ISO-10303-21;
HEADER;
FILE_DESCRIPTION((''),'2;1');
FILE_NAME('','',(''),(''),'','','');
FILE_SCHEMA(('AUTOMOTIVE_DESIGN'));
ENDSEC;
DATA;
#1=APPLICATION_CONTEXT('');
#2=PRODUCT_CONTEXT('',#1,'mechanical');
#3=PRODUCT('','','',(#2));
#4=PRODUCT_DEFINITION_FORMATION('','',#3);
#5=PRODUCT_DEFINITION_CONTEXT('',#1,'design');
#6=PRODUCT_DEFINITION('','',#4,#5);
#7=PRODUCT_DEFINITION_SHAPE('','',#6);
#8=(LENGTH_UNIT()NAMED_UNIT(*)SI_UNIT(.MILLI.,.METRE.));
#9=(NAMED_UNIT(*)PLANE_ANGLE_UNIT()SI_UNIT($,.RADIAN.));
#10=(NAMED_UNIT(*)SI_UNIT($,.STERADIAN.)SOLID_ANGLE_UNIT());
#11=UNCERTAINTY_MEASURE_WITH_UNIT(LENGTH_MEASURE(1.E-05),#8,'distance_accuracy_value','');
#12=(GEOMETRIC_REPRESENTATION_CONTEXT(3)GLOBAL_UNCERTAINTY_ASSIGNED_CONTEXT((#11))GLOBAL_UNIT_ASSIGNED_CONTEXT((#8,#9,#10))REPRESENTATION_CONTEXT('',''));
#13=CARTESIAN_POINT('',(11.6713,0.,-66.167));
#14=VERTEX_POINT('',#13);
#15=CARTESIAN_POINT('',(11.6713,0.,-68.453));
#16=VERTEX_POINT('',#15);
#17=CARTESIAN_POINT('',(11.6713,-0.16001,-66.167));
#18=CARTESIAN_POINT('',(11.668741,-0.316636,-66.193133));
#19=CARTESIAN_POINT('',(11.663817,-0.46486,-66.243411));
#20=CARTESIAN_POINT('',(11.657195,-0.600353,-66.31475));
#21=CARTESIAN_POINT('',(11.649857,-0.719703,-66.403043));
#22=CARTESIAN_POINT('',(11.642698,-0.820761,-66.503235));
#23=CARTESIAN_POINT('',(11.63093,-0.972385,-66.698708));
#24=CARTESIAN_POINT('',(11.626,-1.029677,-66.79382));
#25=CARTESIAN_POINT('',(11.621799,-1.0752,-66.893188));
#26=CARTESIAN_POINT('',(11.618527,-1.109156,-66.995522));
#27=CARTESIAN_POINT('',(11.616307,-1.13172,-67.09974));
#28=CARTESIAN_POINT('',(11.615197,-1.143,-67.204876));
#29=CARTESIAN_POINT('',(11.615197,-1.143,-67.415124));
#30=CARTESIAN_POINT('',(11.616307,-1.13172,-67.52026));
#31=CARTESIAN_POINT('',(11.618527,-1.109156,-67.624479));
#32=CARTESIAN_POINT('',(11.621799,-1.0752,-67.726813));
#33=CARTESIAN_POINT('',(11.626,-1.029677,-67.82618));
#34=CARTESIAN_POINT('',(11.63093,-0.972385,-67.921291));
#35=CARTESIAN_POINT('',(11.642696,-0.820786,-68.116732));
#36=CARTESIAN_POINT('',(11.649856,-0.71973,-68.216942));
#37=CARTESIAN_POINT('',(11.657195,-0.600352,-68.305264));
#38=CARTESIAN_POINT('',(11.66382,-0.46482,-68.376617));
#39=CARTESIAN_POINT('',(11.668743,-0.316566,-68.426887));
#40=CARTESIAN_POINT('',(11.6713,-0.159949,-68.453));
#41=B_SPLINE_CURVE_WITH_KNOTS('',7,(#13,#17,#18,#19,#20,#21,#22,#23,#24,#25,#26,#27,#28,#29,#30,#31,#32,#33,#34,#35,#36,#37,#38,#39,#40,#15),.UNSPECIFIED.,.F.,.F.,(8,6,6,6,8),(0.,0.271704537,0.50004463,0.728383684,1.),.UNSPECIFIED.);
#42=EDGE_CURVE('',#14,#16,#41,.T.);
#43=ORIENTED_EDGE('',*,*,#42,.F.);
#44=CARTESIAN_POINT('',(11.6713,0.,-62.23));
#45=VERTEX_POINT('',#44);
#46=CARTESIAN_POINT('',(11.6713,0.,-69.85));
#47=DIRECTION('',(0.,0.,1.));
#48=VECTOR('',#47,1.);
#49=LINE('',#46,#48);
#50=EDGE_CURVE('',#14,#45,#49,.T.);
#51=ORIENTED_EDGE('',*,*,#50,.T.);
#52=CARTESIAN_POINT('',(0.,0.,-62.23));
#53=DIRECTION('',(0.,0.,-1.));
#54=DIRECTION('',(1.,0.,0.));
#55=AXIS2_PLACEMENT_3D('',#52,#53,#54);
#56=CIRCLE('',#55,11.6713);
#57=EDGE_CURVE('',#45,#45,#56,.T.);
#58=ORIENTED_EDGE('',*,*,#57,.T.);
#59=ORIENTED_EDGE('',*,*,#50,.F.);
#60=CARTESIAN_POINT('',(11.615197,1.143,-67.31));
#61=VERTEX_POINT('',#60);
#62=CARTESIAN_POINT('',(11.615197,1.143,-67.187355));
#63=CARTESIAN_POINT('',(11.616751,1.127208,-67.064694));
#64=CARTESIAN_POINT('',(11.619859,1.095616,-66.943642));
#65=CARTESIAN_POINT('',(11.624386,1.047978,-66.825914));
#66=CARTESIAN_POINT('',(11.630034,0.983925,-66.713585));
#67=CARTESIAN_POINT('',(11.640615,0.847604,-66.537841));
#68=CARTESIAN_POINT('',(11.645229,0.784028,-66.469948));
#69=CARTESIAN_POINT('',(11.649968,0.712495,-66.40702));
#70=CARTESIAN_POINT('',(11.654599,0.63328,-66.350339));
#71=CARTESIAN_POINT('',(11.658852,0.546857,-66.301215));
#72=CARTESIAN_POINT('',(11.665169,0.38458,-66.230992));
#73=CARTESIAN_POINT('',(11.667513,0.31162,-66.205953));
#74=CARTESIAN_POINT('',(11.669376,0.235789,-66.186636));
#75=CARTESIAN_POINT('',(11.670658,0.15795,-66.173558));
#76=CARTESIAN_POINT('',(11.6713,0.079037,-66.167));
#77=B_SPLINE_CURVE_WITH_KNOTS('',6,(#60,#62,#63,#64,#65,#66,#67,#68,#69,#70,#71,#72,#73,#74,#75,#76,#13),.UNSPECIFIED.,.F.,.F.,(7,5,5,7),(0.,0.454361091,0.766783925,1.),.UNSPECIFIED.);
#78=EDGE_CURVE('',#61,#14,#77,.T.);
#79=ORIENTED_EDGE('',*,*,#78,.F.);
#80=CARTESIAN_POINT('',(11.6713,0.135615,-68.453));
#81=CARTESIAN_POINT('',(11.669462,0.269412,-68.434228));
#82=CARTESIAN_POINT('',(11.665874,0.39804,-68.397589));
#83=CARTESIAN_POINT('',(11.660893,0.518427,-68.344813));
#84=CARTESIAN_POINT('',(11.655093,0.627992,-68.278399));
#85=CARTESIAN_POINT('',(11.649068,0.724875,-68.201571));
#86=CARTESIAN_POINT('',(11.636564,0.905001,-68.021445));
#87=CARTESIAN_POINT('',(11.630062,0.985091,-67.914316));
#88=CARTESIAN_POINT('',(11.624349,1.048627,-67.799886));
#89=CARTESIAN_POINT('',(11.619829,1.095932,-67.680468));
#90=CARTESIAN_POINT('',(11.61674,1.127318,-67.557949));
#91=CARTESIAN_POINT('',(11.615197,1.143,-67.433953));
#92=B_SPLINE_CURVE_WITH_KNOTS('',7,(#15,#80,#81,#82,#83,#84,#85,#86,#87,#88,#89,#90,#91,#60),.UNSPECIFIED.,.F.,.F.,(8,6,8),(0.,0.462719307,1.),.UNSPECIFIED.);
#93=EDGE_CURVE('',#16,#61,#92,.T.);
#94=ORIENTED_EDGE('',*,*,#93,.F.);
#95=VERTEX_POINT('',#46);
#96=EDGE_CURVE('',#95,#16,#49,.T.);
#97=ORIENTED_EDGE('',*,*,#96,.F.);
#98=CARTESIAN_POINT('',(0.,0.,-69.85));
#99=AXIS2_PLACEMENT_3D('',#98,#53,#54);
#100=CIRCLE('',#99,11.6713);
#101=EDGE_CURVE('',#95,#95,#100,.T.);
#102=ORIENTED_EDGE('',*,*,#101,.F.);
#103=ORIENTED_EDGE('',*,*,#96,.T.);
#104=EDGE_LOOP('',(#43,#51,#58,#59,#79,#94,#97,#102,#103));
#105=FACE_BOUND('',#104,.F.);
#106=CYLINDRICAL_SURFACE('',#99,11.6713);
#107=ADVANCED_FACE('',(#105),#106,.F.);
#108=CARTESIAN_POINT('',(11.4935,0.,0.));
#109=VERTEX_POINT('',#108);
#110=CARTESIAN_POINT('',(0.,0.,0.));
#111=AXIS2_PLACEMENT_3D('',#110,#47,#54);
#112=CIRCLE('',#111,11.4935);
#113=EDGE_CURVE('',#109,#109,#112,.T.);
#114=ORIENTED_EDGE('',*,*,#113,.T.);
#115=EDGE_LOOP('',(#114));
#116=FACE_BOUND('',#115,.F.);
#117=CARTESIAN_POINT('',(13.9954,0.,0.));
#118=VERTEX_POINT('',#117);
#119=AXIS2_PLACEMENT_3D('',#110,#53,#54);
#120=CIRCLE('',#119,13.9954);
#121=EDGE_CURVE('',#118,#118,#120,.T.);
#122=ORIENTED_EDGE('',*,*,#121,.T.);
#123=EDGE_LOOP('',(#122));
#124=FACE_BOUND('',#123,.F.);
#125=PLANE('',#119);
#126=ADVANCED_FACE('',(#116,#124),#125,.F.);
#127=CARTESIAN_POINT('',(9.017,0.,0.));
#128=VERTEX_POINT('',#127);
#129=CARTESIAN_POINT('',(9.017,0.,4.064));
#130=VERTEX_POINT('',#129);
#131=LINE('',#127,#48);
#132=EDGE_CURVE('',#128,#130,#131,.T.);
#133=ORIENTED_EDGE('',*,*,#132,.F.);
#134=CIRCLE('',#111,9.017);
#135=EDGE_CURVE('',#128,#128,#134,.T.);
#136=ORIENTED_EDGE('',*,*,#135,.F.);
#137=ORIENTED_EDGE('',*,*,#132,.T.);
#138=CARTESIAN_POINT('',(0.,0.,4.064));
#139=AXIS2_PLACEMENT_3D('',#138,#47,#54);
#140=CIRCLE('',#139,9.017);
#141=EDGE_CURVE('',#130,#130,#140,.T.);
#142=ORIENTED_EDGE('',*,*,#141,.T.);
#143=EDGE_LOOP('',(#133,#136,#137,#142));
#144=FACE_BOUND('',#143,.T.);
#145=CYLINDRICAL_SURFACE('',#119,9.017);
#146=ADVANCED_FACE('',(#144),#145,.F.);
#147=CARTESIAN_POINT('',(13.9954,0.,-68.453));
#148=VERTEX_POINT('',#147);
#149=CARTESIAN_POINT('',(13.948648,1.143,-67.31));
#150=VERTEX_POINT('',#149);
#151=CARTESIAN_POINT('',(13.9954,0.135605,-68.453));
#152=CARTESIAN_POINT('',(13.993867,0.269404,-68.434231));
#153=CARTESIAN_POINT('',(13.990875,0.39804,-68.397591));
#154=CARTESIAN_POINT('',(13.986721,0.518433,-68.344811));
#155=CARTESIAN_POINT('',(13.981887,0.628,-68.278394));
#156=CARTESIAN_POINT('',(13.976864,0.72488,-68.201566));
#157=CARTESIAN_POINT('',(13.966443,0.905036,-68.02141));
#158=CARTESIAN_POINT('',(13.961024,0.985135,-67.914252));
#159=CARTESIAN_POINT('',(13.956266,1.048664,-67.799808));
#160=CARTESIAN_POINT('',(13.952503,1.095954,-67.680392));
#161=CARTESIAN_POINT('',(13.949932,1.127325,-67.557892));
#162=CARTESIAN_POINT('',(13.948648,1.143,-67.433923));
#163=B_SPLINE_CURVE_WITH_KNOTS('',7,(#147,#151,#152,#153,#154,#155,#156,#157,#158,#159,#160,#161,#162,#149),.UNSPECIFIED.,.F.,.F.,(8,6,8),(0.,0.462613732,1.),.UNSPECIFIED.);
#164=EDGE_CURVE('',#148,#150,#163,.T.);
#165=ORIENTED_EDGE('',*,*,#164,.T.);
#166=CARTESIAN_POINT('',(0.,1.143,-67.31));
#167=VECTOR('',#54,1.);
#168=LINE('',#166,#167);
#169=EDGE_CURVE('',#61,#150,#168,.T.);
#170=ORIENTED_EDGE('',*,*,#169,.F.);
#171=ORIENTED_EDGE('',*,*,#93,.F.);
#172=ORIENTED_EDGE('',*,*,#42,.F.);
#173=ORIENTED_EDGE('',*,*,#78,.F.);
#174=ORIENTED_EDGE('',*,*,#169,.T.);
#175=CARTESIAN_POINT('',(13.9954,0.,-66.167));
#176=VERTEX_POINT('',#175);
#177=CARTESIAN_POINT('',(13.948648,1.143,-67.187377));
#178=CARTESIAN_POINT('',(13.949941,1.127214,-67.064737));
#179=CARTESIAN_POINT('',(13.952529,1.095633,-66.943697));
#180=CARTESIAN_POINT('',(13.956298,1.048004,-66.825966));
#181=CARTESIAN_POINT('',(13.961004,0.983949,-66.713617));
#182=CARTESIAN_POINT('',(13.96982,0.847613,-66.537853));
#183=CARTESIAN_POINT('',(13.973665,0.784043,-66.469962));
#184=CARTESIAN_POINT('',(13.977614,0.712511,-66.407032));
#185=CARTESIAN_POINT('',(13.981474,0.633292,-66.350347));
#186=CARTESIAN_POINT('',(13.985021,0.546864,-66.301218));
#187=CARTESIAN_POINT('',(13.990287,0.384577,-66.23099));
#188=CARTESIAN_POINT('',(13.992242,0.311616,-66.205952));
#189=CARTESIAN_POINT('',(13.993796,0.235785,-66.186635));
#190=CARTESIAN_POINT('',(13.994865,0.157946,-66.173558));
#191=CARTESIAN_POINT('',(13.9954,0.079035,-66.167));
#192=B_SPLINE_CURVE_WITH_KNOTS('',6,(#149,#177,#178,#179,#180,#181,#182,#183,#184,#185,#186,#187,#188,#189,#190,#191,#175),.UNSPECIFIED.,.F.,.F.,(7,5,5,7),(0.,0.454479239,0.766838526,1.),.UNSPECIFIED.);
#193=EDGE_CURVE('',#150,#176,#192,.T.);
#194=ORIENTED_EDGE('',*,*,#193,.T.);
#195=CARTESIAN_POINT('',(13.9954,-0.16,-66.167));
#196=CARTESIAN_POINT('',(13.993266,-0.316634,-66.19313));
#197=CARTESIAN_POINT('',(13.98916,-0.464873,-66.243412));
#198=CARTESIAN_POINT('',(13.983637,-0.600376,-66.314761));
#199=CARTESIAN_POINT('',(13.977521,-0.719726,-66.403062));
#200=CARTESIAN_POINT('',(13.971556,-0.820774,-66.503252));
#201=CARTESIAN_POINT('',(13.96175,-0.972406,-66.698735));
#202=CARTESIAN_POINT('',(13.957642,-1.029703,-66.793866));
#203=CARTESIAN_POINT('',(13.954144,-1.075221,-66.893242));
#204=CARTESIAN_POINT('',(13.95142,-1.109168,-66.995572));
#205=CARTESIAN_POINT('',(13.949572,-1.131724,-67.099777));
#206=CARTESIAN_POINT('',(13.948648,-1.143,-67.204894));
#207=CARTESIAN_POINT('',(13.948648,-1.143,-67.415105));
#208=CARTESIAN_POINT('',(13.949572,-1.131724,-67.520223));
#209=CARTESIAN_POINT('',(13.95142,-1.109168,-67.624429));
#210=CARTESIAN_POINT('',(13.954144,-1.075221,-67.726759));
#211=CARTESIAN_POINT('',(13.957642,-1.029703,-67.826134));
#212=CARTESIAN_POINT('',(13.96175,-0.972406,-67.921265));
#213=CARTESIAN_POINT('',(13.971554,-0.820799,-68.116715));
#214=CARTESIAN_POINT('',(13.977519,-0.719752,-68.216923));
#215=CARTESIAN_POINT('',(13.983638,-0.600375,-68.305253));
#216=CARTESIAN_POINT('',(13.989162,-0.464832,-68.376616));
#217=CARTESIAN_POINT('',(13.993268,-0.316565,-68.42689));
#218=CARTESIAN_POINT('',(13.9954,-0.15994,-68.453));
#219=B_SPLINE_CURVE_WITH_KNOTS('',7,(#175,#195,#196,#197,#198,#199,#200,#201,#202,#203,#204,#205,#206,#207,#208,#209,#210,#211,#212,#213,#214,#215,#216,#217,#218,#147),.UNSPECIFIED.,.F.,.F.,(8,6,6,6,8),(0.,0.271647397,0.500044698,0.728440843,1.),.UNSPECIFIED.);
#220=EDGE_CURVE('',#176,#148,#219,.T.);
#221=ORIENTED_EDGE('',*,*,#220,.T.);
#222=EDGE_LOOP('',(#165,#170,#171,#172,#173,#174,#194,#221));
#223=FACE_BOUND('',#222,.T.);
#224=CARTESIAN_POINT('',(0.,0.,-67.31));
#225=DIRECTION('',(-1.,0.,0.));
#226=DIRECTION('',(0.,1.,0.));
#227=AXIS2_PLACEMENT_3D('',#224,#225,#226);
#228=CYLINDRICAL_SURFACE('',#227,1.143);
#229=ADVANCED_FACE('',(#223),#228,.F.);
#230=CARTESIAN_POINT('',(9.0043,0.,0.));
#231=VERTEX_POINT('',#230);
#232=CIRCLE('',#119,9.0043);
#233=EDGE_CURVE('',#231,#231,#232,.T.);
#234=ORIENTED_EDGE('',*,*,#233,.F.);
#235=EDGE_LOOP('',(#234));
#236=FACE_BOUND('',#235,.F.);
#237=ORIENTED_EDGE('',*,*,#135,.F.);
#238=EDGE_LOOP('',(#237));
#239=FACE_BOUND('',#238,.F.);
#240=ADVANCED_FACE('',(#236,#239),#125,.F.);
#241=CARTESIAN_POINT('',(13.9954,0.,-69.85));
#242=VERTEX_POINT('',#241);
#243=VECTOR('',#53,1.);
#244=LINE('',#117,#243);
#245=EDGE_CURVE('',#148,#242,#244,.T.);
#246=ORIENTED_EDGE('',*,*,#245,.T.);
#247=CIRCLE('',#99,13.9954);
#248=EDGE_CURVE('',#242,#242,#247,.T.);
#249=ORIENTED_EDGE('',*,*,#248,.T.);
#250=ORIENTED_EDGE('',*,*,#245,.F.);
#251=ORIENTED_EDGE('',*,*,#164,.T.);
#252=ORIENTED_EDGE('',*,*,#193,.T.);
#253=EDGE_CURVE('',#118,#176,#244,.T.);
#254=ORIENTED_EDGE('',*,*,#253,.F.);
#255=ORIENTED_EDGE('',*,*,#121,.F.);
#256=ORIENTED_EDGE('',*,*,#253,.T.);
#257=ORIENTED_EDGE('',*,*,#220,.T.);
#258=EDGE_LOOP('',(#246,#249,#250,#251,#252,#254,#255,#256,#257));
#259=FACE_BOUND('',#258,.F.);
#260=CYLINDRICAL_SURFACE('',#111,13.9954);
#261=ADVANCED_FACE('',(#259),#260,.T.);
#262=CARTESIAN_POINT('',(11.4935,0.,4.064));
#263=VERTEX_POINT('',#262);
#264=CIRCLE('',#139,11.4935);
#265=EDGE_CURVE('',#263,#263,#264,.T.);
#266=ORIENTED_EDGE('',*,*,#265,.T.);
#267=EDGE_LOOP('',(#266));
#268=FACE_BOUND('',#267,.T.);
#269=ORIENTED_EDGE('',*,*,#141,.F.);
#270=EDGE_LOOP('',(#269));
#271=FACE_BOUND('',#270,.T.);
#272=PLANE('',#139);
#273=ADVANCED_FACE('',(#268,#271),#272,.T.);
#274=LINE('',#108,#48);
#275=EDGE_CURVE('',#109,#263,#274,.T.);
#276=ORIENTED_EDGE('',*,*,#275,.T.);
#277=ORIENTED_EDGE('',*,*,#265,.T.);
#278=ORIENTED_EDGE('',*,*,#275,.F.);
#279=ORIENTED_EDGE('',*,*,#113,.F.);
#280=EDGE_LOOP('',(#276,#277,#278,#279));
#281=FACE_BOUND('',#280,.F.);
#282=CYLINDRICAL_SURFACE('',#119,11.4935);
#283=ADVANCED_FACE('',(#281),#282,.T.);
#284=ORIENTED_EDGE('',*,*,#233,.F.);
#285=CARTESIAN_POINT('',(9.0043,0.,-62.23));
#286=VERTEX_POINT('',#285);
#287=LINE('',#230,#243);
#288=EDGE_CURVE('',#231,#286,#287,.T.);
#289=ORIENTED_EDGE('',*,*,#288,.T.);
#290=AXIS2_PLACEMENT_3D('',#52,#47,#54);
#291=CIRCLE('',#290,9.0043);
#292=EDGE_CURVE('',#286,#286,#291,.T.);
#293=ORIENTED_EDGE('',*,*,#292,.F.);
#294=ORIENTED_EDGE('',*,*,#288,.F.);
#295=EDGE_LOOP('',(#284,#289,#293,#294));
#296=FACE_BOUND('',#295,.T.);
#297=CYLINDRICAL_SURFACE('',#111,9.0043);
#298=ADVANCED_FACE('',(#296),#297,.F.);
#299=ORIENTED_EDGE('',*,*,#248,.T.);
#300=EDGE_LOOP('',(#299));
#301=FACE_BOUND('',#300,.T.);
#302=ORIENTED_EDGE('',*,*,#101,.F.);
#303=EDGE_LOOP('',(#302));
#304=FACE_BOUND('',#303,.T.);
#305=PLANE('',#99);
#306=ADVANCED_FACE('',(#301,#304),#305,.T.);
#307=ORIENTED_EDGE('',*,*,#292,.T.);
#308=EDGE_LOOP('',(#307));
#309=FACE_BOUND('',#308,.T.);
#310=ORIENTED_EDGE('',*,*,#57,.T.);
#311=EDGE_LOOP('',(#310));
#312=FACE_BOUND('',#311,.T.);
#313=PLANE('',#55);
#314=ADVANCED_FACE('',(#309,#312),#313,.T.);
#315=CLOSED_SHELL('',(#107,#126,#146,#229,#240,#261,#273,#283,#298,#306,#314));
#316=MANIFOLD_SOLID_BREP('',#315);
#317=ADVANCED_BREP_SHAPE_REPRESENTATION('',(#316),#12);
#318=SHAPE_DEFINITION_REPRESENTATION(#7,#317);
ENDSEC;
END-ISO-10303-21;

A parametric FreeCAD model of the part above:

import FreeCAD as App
import Part
import Sketcher
from FreeCAD import Vector
Q = App.Units.Quantity

doc = App.newDocument("Part")
body = doc.addObject("PartDesign::Body", "Body")

# Sketch on XY plane
sketch1 = body.newObject("Sketcher::SketchObject", "Sketch")
sketch1.AttachmentSupport = (doc.getObject("XY_Plane"), [""])
sketch1.MapMode = "FlatFace"
sketch1.addGeometry(Part.Circle(Vector(0, 0, 0), Vector(0, 0, 1), 11.4935), False)
sketch1.addGeometry(Part.Circle(Vector(0, 0, 0), Vector(0, 0, 1), 9.017), False)
sketch1.addConstraint(Sketcher.Constraint("Coincident", 0, 3, -1, 1))
sketch1.addConstraint(Sketcher.Constraint("Coincident", 1, 3, -1, 1))
sketch1.addConstraint(Sketcher.Constraint("Diameter", 1, Q("0.71 in")))
sketch1.addConstraint(Sketcher.Constraint("Diameter", 0, Q("0.905 in")))
pad1 = body.newObject("PartDesign::Pad", "Pad")
pad1.Profile = sketch1
pad1.Length = Q("0.16 in")

# Sketch on XY plane
sketch2 = body.newObject("Sketcher::SketchObject", "Sketch001")
sketch2.AttachmentSupport = (doc.getObject("XY_Plane"), [""])
sketch2.MapMode = "FlatFace"
sketch2.addGeometry(Part.Circle(Vector(0, 0, 0), Vector(0, 0, 1), 13.9954), False)
sketch2.addGeometry(Part.Circle(Vector(0, 0, 0), Vector(0, 0, 1), 9.0043), False)
sketch2.addConstraint(Sketcher.Constraint("Coincident", 0, 3, -1, 1))
sketch2.addConstraint(Sketcher.Constraint("Coincident", 1, 3, -1, 1))
sketch2.addConstraint(Sketcher.Constraint("Diameter", 0, Q("1.102 in")))
sketch2.addConstraint(Sketcher.Constraint("Diameter", 1, Q("0.709 in")))
pad2 = body.newObject("PartDesign::Pad", "Pad001")
pad2.Profile = sketch2
pad2.Length = Q("2.75 in")
pad2.Reversed = True

# Sketch on XY plane
sketch3 = body.newObject("Sketcher::SketchObject", "Sketch002")
sketch3.AttachmentSupport = (doc.getObject("XY_Plane"), [""])
sketch3.MapMode = "FlatFace"
sketch3.AttachmentOffset = App.Placement(Vector(0, 0, -2.75 * 25.4), App.Rotation())
sketch3.addGeometry(Part.Circle(Vector(0, 0, 0), Vector(0, 0, 1), 11.6713), False)
sketch3.addConstraint(Sketcher.Constraint("Coincident", 0, 3, -1, 1))
sketch3.addConstraint(Sketcher.Constraint("Diameter", 0, Q("0.919 in")))
pocket1 = body.newObject("PartDesign::Pocket", "Pocket")
pocket1.Profile = sketch3
pocket1.Length = Q("0.3 in")
pocket1.Reversed = True

# Sketch on YZ plane
sketch4 = body.newObject("Sketcher::SketchObject", "Sketch003")
sketch4.AttachmentSupport = (doc.getObject("YZ_Plane"), [""])
sketch4.MapMode = "FlatFace"
sketch4.addGeometry(Part.Circle(Vector(0, -67.31, 0), Vector(0, 0, 1), 1.143), False)
sketch4.addConstraint(Sketcher.Constraint("PointOnObject", 0, 3, -2))
sketch4.addConstraint(Sketcher.Constraint("Diameter", 0, Q("0.09 in")))
sketch4.addConstraint(Sketcher.Constraint("DistanceY", 0, 3, -1, 1, Q("2.65 in")))
pocket2 = body.newObject("PartDesign::Pocket", "Pocket001")
pocket2.Profile = sketch4
pocket2.Type = "ThroughAll"
pocket2.Reversed = True

doc.recompute()
